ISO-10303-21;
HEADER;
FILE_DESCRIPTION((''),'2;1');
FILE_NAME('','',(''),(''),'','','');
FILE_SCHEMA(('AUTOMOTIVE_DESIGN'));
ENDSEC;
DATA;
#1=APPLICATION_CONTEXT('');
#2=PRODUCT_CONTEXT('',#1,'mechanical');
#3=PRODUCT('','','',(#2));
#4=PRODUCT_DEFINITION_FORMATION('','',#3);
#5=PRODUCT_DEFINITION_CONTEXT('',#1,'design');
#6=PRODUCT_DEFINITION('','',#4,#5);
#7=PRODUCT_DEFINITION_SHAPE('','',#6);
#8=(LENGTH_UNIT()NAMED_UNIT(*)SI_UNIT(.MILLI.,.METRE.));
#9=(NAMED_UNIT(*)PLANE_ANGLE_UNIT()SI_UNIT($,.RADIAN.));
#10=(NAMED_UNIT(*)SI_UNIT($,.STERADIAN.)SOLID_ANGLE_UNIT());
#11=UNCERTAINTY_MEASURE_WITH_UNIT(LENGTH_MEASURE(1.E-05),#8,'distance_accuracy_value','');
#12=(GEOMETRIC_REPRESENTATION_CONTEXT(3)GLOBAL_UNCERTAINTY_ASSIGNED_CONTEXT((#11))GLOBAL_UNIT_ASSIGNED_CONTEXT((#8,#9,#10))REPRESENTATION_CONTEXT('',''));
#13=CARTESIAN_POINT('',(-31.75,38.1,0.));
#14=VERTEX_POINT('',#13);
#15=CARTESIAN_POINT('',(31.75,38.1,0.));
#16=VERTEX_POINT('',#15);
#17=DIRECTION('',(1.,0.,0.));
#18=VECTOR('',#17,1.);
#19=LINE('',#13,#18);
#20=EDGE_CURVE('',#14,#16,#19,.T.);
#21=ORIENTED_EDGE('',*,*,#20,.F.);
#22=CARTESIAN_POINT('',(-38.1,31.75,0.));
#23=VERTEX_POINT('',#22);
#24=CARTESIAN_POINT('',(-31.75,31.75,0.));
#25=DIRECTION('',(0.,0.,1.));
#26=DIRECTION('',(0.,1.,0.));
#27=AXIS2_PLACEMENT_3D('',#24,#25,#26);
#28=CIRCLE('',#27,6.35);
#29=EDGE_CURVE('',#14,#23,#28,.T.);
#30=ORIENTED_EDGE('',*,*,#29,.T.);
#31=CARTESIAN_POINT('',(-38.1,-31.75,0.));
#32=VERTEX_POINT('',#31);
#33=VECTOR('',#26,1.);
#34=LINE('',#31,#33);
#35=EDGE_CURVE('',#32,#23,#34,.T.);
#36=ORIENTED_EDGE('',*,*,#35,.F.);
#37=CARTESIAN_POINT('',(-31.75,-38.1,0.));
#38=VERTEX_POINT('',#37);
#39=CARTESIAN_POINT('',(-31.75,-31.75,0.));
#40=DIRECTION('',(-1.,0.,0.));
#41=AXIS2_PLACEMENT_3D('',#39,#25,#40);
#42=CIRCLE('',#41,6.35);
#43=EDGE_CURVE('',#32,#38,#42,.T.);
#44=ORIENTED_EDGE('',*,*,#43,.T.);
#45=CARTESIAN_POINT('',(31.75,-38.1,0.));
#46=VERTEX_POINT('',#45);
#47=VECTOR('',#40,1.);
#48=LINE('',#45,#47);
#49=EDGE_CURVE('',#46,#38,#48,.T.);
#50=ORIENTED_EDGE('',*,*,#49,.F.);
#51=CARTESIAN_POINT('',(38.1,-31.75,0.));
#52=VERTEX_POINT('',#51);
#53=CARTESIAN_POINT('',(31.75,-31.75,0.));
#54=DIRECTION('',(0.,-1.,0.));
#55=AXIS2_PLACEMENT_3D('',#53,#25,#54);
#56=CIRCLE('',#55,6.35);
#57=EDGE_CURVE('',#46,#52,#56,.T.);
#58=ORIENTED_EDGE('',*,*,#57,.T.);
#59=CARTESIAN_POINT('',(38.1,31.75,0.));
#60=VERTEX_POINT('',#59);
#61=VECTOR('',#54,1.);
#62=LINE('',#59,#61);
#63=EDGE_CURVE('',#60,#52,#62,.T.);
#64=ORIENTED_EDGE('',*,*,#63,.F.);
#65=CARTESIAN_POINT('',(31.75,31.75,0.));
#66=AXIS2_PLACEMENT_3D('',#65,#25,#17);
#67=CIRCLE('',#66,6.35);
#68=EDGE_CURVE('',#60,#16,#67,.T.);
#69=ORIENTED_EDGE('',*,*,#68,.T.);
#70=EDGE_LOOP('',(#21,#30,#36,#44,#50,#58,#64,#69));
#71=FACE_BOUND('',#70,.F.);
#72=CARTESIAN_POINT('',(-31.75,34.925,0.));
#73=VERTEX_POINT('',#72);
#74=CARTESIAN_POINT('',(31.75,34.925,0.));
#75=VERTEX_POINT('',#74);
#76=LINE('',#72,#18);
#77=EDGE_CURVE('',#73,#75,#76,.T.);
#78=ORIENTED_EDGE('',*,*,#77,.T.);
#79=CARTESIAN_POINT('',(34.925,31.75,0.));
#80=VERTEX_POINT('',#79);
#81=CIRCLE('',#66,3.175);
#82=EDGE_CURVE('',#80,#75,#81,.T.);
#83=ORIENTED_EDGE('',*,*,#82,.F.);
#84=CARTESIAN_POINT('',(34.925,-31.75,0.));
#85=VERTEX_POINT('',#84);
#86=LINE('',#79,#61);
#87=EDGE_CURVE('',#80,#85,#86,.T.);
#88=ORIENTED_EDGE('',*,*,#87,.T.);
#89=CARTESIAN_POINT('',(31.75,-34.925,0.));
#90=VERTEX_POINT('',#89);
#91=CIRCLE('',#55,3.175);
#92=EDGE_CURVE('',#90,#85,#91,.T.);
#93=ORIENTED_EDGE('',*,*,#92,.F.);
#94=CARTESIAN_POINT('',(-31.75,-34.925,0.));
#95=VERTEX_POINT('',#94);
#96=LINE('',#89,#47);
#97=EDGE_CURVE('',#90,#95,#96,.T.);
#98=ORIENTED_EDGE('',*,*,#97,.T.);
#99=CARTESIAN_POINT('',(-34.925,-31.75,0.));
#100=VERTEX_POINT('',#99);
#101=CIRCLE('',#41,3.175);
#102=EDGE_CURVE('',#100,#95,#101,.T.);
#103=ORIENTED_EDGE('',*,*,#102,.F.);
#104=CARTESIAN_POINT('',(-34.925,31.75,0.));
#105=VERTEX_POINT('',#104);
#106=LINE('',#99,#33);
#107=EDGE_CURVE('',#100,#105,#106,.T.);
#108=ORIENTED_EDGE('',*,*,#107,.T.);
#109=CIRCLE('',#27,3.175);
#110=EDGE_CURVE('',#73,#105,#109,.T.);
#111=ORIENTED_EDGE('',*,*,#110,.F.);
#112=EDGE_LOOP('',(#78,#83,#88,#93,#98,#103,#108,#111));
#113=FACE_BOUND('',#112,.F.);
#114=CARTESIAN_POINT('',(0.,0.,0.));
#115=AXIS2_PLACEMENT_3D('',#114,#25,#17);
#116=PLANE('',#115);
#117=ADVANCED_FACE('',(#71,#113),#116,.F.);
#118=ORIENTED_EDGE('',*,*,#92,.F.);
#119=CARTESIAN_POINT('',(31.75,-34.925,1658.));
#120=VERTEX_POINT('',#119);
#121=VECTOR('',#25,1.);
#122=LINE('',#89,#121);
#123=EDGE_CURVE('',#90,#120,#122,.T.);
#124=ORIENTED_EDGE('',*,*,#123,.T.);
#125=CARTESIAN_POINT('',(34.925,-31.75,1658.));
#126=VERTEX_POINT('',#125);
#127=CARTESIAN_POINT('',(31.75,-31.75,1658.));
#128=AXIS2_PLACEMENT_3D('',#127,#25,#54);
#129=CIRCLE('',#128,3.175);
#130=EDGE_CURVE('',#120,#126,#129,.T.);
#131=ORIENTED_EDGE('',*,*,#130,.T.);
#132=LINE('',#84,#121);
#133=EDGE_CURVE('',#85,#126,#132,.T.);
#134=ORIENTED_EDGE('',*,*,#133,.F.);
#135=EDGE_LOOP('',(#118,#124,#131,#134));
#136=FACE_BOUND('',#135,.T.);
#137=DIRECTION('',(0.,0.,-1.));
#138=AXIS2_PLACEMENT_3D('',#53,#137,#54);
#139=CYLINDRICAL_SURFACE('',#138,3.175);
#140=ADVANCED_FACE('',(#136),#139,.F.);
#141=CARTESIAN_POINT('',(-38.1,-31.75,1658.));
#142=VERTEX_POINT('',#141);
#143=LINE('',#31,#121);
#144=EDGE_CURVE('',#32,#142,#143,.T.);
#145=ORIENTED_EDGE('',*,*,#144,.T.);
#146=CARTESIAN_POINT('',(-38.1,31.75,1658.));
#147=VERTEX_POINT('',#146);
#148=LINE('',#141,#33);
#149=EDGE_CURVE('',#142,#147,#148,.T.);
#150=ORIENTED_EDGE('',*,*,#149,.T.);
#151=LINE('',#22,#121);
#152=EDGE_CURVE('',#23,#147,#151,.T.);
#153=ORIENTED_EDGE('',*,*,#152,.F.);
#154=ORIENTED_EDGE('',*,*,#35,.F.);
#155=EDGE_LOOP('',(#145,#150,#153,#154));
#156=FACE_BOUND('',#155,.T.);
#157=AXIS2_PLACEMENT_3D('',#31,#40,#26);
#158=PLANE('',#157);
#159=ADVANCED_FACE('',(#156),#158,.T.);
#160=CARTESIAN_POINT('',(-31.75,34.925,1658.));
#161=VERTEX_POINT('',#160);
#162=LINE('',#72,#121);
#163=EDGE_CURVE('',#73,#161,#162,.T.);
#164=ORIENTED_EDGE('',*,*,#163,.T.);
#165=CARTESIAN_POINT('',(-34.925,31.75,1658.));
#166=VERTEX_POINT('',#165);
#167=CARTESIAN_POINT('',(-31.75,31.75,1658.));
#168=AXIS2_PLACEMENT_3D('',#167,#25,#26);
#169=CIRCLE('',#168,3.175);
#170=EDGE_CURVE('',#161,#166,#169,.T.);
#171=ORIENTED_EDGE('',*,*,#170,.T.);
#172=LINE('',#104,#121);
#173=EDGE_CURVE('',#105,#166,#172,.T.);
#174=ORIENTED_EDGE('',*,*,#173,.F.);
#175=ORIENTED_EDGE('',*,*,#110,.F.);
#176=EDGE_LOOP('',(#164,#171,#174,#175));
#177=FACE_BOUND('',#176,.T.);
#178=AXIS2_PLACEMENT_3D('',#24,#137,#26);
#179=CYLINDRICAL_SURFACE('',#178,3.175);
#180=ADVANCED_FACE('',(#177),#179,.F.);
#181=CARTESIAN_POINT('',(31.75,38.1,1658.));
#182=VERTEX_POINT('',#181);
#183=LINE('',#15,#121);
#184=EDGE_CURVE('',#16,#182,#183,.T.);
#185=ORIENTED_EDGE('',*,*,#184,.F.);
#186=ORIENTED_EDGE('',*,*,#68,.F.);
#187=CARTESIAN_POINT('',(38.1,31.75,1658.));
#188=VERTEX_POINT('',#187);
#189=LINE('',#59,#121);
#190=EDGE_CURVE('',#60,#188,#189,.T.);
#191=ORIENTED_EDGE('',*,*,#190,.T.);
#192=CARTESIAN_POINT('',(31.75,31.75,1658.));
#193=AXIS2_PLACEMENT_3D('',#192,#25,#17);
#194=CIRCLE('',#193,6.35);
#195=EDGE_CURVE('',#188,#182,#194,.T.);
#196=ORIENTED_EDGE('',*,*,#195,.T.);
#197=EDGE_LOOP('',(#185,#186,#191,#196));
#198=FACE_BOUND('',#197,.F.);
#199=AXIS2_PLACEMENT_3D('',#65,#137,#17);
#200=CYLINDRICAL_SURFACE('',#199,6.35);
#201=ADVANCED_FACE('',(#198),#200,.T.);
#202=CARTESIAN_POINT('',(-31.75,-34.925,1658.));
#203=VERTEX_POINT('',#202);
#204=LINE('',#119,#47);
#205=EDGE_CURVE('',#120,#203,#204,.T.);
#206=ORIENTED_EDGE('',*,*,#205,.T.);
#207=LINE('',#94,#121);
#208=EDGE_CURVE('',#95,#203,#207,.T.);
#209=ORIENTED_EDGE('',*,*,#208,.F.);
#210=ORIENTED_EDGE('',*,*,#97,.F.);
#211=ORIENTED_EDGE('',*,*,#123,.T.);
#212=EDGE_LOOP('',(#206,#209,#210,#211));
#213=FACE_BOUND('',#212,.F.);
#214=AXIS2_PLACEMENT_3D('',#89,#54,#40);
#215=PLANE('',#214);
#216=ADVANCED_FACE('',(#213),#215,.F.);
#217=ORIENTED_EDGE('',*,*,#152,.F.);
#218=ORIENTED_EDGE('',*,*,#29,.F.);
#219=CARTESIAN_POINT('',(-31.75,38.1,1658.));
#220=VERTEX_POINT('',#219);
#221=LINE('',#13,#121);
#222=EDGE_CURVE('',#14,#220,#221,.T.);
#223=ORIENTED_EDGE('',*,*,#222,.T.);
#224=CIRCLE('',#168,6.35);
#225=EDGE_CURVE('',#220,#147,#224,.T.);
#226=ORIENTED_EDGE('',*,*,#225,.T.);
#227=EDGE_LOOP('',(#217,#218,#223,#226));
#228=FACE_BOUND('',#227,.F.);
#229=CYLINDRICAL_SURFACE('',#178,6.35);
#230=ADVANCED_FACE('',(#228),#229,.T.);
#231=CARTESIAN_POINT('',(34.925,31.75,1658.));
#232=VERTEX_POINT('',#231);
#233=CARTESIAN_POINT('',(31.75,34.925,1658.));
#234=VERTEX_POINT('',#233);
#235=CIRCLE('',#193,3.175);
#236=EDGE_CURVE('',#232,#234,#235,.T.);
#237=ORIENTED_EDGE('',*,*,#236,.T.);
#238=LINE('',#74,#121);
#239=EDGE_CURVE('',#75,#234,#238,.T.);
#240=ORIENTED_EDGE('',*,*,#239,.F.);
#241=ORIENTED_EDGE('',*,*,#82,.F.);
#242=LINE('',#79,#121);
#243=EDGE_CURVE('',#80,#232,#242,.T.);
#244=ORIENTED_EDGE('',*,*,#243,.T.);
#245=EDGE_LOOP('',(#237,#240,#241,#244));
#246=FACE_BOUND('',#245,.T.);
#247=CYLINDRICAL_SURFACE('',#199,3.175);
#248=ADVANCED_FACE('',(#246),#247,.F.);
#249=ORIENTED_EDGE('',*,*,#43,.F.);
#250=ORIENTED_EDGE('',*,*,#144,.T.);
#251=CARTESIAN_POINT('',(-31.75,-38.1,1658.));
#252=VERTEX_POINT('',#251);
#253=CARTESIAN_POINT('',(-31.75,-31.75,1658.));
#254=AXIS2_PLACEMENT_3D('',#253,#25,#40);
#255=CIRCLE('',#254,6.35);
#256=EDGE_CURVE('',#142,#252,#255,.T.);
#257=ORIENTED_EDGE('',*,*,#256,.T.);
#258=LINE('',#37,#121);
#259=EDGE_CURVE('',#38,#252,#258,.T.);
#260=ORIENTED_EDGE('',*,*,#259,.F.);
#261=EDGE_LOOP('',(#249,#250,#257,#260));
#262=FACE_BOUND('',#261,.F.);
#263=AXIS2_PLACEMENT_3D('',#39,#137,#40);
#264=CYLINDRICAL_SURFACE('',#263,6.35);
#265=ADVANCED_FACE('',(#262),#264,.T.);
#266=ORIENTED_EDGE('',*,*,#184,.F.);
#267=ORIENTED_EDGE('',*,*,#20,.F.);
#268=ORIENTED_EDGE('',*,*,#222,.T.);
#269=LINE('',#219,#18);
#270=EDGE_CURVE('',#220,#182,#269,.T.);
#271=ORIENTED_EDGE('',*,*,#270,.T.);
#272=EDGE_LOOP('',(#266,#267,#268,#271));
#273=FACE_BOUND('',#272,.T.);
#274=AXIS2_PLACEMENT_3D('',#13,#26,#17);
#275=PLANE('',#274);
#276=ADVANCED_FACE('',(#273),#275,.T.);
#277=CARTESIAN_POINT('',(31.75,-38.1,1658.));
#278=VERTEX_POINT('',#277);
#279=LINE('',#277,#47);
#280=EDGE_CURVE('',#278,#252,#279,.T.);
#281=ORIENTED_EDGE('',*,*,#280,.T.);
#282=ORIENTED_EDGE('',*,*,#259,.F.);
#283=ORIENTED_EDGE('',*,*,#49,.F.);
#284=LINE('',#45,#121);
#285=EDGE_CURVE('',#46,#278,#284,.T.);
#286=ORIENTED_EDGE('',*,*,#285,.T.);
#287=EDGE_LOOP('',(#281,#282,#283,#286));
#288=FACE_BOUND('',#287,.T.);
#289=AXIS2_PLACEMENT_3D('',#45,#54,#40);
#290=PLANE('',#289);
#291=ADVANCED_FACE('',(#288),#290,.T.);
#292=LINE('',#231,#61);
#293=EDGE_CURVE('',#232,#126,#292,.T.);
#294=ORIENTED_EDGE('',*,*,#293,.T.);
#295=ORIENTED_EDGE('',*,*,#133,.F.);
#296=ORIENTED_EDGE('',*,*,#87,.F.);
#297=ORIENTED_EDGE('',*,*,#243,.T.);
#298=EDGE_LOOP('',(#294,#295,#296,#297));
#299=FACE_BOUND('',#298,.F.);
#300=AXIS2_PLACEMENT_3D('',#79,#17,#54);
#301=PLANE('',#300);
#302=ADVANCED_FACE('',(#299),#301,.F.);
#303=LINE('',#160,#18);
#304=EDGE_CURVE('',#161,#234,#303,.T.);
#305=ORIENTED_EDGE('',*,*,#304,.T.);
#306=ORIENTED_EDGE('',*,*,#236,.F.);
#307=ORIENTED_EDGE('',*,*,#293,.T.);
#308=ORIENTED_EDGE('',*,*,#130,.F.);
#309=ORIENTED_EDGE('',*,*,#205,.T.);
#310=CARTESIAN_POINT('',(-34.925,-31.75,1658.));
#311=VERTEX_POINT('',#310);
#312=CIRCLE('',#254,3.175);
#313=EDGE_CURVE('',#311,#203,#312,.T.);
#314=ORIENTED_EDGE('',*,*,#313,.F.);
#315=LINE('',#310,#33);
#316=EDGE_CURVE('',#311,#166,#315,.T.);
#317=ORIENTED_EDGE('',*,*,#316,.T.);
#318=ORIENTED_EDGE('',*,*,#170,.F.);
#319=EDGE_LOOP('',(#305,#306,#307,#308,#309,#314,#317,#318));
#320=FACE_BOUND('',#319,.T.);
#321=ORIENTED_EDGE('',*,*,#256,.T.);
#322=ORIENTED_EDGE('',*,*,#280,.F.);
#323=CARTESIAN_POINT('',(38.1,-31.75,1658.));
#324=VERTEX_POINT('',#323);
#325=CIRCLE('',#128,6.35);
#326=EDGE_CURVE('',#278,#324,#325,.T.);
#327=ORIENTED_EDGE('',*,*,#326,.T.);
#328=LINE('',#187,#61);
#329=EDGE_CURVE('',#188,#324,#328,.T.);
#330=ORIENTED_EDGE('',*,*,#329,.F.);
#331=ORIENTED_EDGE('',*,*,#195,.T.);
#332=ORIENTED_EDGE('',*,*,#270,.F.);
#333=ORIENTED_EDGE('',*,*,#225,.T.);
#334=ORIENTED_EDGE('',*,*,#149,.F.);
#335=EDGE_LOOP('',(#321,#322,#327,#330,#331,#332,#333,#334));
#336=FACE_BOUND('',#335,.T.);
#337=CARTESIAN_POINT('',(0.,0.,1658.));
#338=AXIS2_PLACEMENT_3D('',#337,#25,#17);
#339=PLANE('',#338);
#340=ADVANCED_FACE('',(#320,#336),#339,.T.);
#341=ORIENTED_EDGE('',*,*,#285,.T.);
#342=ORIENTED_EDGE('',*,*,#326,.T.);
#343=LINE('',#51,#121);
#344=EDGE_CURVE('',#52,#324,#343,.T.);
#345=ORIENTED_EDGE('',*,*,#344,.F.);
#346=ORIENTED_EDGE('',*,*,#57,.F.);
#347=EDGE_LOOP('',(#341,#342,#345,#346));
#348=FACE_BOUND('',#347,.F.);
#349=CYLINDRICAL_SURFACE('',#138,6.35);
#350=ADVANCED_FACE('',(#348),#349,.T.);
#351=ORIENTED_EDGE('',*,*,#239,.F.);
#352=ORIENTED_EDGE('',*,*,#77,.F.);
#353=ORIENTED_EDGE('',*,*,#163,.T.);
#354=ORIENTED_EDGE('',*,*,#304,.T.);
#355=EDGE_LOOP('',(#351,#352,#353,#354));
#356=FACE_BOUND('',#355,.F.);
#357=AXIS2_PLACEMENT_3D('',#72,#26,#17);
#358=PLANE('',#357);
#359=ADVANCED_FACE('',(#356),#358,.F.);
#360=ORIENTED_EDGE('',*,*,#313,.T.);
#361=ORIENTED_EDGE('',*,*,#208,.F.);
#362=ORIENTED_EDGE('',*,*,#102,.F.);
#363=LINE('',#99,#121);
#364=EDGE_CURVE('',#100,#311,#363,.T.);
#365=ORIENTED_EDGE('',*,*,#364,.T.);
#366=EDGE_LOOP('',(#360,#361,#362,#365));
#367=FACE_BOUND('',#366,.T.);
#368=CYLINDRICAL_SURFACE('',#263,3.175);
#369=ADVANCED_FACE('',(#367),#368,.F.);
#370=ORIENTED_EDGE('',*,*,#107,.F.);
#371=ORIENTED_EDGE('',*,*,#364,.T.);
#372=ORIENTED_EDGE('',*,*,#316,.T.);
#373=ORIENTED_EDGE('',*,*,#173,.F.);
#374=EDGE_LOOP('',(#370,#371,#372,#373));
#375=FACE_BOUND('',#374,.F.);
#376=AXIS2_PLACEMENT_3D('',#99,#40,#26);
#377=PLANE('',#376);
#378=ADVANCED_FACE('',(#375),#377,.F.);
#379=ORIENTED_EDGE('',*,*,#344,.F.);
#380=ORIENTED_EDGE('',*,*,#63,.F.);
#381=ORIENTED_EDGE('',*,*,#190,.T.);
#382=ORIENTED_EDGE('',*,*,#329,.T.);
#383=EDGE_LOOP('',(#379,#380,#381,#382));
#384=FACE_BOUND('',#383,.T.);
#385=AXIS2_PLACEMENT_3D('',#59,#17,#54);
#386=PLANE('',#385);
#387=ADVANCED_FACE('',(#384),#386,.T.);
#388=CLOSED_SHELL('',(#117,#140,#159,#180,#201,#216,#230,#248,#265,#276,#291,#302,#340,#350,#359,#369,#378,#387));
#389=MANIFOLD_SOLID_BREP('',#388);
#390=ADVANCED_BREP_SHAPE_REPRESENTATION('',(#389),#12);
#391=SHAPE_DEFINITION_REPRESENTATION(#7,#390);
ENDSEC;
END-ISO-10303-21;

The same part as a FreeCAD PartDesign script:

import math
import FreeCAD as App
import Part
import Sketcher
from FreeCAD import Vector
Q = App.Units.Quantity

doc = App.newDocument("Part")
body = doc.addObject("PartDesign::Body", "Body")

sketch1 = doc.addObject("Sketcher::SketchObject", "Sketch")
body.addObject(sketch1)
sketch1.AttachmentSupport = (doc.XY_Plane, [""])
sketch1.MapMode = "FlatFace"
sketch1.addGeometry([
    Part.LineSegment(Vector(-38.1, 31.8, 0), Vector(-38.1, -31.8, 0)),
    Part.ArcOfCircle(Part.Circle(Vector(-31.8, -31.8, 0), Vector(0, 0, 1), 6.4), math.radians(180), math.radians(270)),
    Part.LineSegment(Vector(-31.8, -38.1, 0), Vector(31.8, -38.1, 0)),
    Part.ArcOfCircle(Part.Circle(Vector(31.8, -31.8, 0), Vector(0, 0, 1), 6.4), math.radians(-90), math.radians(0)),
    Part.LineSegment(Vector(38.1, -31.8, 0), Vector(38.1, 31.8, 0)),
    Part.ArcOfCircle(Part.Circle(Vector(31.8, 31.8, 0), Vector(0, 0, 1), 6.4), math.radians(0), math.radians(90)),
    Part.LineSegment(Vector(31.8, 38.1, 0), Vector(-31.8, 38.1, 0)),
    Part.ArcOfCircle(Part.Circle(Vector(-31.8, 31.8, 0), Vector(0, 0, 1), 6.4), math.radians(90), math.radians(180)),
    Part.ArcOfCircle(Part.Circle(Vector(-31.8, 31.8, 0), Vector(0, 0, 1), 3.2), math.radians(90), math.radians(180)),
    Part.LineSegment(Vector(-31.8, 34.9, 0), Vector(31.8, 34.9, 0)),
    Part.ArcOfCircle(Part.Circle(Vector(31.8, 31.8, 0), Vector(0, 0, 1), 3.2), math.radians(0), math.radians(90)),
    Part.LineSegment(Vector(34.9, 31.8, 0), Vector(34.9, -31.8, 0)),
    Part.ArcOfCircle(Part.Circle(Vector(31.8, -31.8, 0), Vector(0, 0, 1), 3.2), math.radians(-90), math.radians(0)),
    Part.LineSegment(Vector(31.8, -34.9, 0), Vector(-31.8, -34.9, 0)),
    Part.ArcOfCircle(Part.Circle(Vector(-31.8, -31.8, 0), Vector(0, 0, 1), 3.2), math.radians(180), math.radians(270)),
    Part.LineSegment(Vector(-34.9, -31.8, 0), Vector(-34.9, 31.8, 0)),
], False)
sketch1.addConstraint([
    Sketcher.Constraint("Tangent", 0, 2, 1, 1),
    Sketcher.Constraint("Tangent", 1, 2, 2, 1),
    Sketcher.Constraint("Tangent", 2, 2, 3, 1),
    Sketcher.Constraint("Tangent", 3, 2, 4, 1),
    Sketcher.Constraint("Tangent", 4, 2, 5, 1),
    Sketcher.Constraint("Tangent", 5, 2, 6, 1),
    Sketcher.Constraint("Tangent", 6, 2, 7, 1),
    Sketcher.Constraint("Tangent", 7, 2, 0, 1),
    Sketcher.Constraint("Tangent", 8, 1, 9, 1),
    Sketcher.Constraint("Tangent", 9, 2, 10, 2),
    Sketcher.Constraint("Tangent", 10, 1, 11, 1),
    Sketcher.Constraint("Tangent", 11, 2, 12, 2),
    Sketcher.Constraint("Tangent", 12, 1, 13, 1),
    Sketcher.Constraint("Tangent", 13, 2, 14, 2),
    Sketcher.Constraint("Tangent", 14, 1, 15, 1),
    Sketcher.Constraint("Tangent", 15, 2, 8, 2),
    Sketcher.Constraint("Vertical", 0),
    Sketcher.Constraint("Horizontal", 2),
    Sketcher.Constraint("Vertical", 4),
    Sketcher.Constraint("Horizontal", 6),
    Sketcher.Constraint("Horizontal", 9),
    Sketcher.Constraint("Vertical", 11),
    Sketcher.Constraint("Horizontal", 13),
    Sketcher.Constraint("Vertical", 15),
    Sketcher.Constraint("Coincident", 8, 3, 7, 3),
    Sketcher.Constraint("Coincident", 10, 3, 5, 3),
    Sketcher.Constraint("Coincident", 12, 3, 3, 3),
    Sketcher.Constraint("Equal", 1, 3),
    Sketcher.Constraint("Equal", 3, 5),
    Sketcher.Constraint("Equal", 5, 7),
    Sketcher.Constraint("Equal", 12, 14),
    Sketcher.Constraint("Symmetric", 1, 3, 5, 3, -1, 1),
    Sketcher.Constraint("Equal", 13, 0),
    Sketcher.Constraint("Radius", 1, Q("0.25 in")),
    Sketcher.Constraint("Radius", 8, Q("0.125 in")),
    Sketcher.Constraint("DistanceX", 0, 2, -1, 1, Q("1.5 in")),
])
pad1 = doc.addObject("PartDesign::Pad", "Pad")
body.addObject(pad1)
pad1.Profile = sketch1
pad1.Length = Q("65.2755906 in")

doc.recompute()
